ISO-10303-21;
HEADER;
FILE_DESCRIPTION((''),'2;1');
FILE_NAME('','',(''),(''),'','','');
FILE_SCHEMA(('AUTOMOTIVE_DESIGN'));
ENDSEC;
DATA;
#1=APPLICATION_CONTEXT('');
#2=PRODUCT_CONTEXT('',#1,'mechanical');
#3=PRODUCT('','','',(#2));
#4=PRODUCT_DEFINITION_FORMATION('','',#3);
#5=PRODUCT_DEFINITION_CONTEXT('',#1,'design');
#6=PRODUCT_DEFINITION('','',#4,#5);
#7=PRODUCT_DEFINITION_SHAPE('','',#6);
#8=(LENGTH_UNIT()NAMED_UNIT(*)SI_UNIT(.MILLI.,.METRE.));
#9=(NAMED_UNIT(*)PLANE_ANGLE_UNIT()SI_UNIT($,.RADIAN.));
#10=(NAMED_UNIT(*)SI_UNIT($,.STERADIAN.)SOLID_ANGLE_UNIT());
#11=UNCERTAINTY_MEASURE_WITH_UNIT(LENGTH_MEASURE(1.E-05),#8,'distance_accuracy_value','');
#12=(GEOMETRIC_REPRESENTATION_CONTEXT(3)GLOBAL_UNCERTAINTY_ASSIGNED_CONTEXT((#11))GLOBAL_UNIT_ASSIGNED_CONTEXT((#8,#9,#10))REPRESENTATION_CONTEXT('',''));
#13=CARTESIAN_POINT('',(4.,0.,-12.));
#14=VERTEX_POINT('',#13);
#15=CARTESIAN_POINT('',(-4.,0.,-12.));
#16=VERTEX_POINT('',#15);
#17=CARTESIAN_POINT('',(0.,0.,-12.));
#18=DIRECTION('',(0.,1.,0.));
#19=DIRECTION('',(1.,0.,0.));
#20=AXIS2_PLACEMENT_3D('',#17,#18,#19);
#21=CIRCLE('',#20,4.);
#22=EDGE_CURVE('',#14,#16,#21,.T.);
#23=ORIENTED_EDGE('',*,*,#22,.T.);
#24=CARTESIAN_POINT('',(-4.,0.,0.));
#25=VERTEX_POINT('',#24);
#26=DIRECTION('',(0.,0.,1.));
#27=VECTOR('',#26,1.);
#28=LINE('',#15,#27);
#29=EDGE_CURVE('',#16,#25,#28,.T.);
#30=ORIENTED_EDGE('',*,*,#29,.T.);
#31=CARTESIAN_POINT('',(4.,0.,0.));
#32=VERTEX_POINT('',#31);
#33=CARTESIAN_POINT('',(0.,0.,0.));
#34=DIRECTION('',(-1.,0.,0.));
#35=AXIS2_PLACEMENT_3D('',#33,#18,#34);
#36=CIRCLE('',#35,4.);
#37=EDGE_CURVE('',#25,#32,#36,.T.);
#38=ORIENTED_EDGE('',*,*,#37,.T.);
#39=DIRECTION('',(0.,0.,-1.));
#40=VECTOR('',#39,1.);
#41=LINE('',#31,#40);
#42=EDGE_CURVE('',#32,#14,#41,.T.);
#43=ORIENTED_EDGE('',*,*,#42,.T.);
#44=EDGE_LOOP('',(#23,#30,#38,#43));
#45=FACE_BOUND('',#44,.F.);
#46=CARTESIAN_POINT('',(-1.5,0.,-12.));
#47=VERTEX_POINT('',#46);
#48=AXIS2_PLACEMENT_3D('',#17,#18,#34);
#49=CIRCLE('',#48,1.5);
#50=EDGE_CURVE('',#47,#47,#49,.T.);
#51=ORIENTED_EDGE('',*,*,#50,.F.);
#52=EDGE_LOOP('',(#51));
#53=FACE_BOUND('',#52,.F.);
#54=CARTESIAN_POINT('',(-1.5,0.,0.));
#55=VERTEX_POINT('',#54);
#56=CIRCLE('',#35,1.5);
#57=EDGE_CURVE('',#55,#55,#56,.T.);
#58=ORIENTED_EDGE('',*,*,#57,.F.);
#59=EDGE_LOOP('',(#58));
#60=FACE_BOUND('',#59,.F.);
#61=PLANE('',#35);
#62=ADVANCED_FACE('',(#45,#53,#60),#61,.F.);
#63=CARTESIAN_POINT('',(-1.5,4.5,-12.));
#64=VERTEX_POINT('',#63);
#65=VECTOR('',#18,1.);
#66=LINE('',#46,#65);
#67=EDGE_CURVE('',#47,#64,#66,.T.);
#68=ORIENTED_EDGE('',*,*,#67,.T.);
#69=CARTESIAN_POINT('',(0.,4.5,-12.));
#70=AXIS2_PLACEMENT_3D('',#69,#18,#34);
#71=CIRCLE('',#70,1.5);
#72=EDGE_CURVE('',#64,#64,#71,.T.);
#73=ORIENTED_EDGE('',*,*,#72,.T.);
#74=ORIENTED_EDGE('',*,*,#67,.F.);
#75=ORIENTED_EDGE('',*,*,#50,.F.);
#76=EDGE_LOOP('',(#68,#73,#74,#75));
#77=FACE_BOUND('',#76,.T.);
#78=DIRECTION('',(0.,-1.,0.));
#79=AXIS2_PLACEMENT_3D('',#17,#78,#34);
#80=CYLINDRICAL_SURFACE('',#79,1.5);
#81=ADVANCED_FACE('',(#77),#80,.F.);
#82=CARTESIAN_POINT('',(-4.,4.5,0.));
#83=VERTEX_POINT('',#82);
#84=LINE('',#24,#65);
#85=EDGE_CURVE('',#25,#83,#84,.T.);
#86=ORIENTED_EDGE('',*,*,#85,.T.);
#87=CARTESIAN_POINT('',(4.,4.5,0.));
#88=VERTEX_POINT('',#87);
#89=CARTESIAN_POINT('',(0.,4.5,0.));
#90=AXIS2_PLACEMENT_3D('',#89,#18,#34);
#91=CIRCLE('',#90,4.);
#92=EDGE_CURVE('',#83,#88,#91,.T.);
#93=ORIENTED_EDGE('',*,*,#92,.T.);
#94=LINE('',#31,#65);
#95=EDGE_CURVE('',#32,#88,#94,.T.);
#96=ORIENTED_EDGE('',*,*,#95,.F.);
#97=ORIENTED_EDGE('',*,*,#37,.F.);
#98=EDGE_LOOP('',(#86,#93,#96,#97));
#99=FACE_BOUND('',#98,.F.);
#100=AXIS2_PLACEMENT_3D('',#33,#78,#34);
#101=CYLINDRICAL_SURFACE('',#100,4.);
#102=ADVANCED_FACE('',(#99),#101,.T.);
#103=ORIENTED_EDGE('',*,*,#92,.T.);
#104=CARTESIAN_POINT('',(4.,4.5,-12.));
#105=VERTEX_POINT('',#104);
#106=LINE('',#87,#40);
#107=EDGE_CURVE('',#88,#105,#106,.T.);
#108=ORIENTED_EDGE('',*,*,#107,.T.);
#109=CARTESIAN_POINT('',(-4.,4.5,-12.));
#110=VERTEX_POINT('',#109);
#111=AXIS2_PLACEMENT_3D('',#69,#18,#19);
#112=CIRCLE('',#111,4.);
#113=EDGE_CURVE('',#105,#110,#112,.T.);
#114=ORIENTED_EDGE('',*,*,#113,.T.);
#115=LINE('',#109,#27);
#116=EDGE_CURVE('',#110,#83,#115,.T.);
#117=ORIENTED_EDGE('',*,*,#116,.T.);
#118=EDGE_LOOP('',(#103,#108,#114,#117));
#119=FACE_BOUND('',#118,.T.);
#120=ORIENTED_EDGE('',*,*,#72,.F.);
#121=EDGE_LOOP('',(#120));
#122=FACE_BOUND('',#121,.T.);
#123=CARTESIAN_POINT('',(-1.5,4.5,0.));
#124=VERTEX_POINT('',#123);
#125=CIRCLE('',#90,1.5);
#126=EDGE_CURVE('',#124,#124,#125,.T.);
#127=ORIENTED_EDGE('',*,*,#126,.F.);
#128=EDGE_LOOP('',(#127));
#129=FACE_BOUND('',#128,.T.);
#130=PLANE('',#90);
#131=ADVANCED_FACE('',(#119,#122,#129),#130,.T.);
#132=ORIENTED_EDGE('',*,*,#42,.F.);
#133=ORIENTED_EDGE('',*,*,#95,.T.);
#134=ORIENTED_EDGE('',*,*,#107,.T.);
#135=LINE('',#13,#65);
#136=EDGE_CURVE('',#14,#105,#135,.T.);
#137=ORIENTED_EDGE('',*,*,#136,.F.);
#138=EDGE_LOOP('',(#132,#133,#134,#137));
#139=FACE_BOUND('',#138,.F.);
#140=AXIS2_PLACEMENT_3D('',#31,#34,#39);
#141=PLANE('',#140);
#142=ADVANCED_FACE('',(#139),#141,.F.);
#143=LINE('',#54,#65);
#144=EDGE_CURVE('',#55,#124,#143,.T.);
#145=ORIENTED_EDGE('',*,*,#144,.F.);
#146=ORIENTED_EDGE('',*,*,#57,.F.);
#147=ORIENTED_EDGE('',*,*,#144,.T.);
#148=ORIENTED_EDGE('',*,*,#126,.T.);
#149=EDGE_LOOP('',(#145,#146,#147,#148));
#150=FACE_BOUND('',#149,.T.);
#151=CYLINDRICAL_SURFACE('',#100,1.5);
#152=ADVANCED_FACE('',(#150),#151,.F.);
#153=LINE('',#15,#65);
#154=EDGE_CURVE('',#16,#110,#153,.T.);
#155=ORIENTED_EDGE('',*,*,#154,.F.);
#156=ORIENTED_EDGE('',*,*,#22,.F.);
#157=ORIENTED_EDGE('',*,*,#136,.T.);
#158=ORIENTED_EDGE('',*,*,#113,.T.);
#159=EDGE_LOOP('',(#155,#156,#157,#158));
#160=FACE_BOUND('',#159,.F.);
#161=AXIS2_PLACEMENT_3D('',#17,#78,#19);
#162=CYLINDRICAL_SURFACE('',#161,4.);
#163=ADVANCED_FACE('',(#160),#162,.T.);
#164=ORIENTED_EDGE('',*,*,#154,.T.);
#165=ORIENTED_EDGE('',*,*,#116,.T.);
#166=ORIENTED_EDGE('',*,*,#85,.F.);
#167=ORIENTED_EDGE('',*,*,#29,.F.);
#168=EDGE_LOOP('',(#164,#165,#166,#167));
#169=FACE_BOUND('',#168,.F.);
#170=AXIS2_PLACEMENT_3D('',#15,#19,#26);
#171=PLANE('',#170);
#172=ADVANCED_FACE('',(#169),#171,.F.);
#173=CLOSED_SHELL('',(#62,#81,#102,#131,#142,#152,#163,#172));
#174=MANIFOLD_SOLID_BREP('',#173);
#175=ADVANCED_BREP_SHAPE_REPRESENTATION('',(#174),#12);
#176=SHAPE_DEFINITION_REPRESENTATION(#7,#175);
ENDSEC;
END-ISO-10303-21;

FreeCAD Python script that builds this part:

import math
import FreeCAD as App
import Part
import Sketcher
from FreeCAD import Vector
Q = App.Units.Quantity

doc = App.newDocument("Part")
body = doc.addObject("PartDesign::Body", "Body")

sketch1 = body.newObject("Sketcher::SketchObject", "Sketch")
sketch1.AttachmentSupport = (doc.getObject("XZ_Plane"), [""])
sketch1.MapMode = "FlatFace"
sketch1.addGeometry(Part.ArcOfCircle(Part.Circle(Vector(0, 0, 0), Vector(0, 0, 1), 4), math.radians(0), math.radians(180)), False)
sketch1.addGeometry(Part.LineSegment(Vector(4, 0, 0), Vector(4, -12, 0)), False)
sketch1.addGeometry(Part.ArcOfCircle(Part.Circle(Vector(0, -12, 0), Vector(0, 0, 1), 4), math.radians(180), math.radians(360)), False)
sketch1.addGeometry(Part.LineSegment(Vector(-4, -12, 0), Vector(-4, 0, 0)), False)
sketch1.addGeometry(Part.Circle(Vector(0, -12, 0), Vector(0, 0, 1), 1.5), False)
sketch1.addGeometry(Part.Circle(Vector(0, 0, 0), Vector(0, 0, 1), 1.5), False)
sketch1.addConstraint(Sketcher.Constraint("Tangent", 0, 1, 1, 1))
sketch1.addConstraint(Sketcher.Constraint("Tangent", 1, 2, 2, 2))
sketch1.addConstraint(Sketcher.Constraint("Tangent", 2, 1, 3, 1))
sketch1.addConstraint(Sketcher.Constraint("Tangent", 3, 2, 0, 2))
sketch1.addConstraint(Sketcher.Constraint("Vertical", 1))
sketch1.addConstraint(Sketcher.Constraint("Vertical", 3))
sketch1.addConstraint(Sketcher.Constraint("Coincident", 0, 3, -1, 1))
sketch1.addConstraint(Sketcher.Constraint("Coincident", 5, 3, -1, 1))
sketch1.addConstraint(Sketcher.Constraint("Coincident", 4, 3, 2, 3))
sketch1.addConstraint(Sketcher.Constraint("Equal", 4, 5))
sketch1.addConstraint(Sketcher.Constraint("Diameter", 4, Q("3 mm")))
sketch1.addConstraint(Sketcher.Constraint("Radius", 0, Q("4 mm")))
sketch1.addConstraint(Sketcher.Constraint("DistanceY", 1, 2, 1, 1, Q("12 mm")))
pad1 = body.newObject("PartDesign::Pad", "Pad")
pad1.Profile = sketch1
pad1.Length = 4.5
pad1.Reversed = True

doc.recompute()
